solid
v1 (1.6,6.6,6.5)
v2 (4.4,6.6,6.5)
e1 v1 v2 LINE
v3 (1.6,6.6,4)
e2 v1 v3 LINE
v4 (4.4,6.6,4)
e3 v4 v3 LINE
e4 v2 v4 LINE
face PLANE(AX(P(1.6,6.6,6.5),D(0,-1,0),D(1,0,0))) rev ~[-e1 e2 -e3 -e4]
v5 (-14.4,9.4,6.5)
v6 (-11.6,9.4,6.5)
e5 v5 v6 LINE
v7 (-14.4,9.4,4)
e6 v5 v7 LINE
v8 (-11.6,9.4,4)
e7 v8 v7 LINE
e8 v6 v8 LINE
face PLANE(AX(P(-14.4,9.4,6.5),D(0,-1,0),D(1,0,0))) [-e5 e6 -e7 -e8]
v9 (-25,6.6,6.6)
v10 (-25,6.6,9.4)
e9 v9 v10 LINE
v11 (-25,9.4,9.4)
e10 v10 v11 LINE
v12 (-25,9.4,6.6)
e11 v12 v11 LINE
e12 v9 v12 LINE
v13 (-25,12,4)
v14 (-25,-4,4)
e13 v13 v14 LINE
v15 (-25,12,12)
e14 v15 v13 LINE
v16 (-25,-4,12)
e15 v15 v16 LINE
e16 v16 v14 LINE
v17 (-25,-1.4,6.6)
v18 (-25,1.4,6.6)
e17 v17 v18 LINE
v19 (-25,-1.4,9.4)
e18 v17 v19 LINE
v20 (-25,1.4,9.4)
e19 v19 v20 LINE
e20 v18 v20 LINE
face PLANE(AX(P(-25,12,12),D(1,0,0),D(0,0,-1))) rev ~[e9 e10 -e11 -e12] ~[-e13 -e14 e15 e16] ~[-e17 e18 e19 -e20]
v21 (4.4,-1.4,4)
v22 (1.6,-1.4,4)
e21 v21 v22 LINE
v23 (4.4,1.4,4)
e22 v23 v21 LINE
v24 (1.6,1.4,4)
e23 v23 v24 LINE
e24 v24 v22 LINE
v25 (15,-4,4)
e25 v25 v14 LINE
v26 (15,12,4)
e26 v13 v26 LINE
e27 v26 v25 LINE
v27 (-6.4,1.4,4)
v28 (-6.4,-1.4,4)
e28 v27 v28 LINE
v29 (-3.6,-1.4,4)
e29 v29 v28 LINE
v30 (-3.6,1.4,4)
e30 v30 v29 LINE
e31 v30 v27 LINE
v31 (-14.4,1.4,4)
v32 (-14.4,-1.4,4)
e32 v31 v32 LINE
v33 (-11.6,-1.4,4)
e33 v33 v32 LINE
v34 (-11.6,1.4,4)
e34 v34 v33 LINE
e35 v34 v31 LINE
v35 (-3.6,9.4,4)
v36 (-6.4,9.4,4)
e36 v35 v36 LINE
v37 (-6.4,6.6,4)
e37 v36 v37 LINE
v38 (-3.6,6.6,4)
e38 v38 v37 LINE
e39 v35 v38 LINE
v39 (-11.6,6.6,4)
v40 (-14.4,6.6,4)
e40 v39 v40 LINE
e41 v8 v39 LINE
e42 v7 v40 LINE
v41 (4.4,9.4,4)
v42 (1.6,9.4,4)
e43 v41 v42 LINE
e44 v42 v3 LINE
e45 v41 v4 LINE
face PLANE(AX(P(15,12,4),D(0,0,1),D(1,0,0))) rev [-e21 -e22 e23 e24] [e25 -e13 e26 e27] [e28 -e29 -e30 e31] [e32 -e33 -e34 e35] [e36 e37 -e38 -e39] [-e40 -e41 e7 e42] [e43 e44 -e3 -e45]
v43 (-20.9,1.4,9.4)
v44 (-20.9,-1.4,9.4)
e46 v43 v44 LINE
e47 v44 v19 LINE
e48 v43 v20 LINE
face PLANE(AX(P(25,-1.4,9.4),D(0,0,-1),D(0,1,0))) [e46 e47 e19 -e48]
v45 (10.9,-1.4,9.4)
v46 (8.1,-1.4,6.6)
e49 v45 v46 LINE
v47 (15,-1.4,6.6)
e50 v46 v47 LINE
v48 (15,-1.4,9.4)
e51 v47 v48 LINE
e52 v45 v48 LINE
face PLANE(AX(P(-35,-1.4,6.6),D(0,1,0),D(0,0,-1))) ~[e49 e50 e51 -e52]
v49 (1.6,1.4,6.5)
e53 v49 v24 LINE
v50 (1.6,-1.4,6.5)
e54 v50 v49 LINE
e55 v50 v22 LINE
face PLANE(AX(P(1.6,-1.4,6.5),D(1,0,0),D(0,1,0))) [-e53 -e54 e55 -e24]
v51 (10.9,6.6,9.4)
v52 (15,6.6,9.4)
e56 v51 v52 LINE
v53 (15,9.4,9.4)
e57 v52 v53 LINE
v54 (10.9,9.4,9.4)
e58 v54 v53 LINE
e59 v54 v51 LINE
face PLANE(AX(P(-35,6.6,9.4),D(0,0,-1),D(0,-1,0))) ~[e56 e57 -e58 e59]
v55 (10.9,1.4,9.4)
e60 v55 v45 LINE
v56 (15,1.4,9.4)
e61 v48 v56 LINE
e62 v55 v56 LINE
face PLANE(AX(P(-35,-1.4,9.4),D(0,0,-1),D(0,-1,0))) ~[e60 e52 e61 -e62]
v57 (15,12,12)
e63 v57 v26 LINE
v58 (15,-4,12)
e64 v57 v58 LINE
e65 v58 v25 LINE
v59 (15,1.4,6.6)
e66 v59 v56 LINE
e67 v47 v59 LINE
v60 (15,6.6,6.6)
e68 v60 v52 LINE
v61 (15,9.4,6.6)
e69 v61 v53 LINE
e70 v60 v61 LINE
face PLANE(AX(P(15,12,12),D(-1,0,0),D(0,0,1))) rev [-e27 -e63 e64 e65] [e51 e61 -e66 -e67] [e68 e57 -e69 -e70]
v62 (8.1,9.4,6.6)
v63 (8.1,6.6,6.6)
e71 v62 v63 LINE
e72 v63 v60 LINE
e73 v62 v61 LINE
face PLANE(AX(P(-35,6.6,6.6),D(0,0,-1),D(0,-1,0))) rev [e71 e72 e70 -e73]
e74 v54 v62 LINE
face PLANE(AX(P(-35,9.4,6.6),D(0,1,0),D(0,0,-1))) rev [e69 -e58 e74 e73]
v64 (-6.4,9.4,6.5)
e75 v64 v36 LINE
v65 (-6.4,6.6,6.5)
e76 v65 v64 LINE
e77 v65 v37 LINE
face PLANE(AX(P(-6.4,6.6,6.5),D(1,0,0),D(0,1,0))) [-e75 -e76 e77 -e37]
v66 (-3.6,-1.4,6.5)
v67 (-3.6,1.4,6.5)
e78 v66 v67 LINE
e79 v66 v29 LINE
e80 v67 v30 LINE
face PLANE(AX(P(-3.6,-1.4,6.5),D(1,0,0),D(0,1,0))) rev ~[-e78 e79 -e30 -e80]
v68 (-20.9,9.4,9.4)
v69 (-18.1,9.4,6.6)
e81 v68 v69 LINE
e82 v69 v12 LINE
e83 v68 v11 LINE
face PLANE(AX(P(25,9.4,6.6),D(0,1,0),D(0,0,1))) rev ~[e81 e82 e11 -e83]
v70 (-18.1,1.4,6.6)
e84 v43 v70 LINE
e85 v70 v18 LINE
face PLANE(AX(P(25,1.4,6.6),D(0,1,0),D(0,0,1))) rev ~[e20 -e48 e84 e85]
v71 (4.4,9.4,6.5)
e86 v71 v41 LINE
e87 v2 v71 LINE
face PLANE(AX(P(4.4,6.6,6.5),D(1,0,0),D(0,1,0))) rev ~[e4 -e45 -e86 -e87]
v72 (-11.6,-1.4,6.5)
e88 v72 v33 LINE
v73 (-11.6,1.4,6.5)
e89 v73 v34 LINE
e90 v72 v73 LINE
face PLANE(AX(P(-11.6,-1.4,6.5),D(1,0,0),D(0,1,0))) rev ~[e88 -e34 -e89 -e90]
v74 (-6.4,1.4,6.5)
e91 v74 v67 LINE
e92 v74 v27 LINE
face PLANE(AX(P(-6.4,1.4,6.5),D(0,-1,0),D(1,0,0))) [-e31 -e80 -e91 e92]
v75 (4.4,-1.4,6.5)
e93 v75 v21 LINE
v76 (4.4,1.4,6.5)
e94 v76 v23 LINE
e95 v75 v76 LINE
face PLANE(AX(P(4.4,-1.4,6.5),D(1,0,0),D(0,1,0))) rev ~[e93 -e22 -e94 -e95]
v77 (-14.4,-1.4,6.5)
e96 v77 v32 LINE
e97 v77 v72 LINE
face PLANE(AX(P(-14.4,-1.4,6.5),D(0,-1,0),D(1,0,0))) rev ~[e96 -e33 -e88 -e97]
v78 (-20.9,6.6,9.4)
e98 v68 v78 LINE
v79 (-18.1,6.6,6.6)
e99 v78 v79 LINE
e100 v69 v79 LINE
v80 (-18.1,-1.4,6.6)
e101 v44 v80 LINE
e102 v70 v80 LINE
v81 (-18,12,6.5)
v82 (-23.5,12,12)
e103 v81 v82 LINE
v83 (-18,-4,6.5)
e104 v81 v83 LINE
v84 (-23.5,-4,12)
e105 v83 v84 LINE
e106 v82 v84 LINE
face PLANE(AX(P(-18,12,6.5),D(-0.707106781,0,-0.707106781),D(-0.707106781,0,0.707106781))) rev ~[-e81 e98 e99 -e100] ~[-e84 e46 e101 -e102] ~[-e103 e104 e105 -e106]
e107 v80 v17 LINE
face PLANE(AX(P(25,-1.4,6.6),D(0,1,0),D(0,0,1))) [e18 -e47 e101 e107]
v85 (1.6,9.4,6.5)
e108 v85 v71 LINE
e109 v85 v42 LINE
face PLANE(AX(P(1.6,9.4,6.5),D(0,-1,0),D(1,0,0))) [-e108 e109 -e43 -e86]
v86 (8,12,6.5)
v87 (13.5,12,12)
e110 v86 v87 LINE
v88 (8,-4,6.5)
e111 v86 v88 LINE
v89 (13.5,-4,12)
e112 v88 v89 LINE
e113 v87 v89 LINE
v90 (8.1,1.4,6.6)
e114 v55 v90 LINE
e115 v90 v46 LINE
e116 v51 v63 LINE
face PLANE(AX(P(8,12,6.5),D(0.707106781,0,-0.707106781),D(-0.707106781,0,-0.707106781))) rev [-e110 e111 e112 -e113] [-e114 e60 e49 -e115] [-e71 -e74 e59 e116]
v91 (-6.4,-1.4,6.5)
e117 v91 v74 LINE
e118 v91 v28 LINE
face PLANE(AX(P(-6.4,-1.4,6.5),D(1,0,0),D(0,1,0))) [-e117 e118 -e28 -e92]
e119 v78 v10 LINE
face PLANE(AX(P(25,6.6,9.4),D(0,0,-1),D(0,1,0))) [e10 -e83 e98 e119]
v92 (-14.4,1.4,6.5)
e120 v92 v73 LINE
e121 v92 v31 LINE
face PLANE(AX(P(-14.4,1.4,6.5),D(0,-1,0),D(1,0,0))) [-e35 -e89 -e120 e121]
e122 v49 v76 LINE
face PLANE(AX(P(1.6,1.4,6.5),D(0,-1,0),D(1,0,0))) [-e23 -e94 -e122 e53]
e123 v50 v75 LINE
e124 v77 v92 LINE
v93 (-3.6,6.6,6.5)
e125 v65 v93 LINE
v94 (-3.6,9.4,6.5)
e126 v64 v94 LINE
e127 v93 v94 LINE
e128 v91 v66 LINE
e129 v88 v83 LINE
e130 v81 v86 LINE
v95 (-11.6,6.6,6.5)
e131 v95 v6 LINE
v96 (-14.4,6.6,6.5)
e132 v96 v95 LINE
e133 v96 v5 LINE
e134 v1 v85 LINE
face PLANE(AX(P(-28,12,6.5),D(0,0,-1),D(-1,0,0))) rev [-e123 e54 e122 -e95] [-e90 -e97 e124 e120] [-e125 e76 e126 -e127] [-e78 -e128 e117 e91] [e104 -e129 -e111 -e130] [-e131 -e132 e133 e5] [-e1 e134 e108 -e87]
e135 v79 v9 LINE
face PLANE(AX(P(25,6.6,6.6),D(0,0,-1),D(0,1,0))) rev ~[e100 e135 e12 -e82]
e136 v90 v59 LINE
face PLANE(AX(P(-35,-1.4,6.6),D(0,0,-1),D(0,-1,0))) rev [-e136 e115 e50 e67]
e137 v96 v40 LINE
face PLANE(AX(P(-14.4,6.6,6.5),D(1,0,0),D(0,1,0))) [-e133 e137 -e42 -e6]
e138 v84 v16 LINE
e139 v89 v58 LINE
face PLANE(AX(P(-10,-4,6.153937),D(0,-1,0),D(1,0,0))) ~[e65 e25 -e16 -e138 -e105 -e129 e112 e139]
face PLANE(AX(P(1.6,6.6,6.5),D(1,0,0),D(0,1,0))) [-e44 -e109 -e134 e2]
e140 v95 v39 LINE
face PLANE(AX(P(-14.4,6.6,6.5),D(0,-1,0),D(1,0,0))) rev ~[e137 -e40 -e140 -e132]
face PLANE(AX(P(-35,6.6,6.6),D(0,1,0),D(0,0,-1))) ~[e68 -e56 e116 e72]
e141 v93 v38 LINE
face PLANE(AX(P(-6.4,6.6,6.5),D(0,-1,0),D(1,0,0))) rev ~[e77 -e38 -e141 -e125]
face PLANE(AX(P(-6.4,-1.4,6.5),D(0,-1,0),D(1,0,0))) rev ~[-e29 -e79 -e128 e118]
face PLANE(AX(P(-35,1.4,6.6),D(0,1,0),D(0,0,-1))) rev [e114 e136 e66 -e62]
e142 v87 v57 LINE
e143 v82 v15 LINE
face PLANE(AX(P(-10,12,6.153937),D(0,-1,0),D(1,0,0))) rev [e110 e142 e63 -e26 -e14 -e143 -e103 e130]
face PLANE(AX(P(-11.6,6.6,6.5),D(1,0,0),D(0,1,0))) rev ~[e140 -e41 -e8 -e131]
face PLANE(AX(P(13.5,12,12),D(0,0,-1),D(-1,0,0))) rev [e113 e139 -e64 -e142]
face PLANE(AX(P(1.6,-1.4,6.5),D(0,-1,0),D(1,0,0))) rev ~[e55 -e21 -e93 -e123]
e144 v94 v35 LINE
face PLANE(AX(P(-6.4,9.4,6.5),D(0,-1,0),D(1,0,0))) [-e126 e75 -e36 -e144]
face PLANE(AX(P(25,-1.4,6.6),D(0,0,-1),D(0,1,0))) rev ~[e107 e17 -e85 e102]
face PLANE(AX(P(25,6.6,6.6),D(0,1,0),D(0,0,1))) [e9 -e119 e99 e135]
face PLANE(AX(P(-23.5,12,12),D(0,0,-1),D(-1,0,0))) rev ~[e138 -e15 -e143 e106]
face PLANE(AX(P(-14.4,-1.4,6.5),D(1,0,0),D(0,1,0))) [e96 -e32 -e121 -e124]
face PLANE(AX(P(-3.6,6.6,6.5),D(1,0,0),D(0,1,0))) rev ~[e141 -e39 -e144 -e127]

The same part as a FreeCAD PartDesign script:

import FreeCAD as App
import Part
import Sketcher
Q = App.Units.Quantity

doc = App.newDocument("Part")
body = doc.addObject("PartDesign::Body", "Body")

sketch1 = body.newObject("Sketcher::SketchObject", "Sketch")
sketch1.AttachmentSupport = (doc.getObject("XY_Plane"), [""])
sketch1.MapMode = "FlatFace"
sketch1.addGeometry([
    Part.LineSegment(App.Vector(-25, 0, 0), App.Vector(25, 0, 0)),
    Part.LineSegment(App.Vector(25, 0, 0), App.Vector(25, 8, 0)),
    Part.LineSegment(App.Vector(25, 8, 0), App.Vector(23.5, 8, 0)),
    Part.LineSegment(App.Vector(23.5, 8, 0), App.Vector(18, 2.5, 0)),
    Part.LineSegment(App.Vector(18, 2.5, 0), App.Vector(-18, 2.5, 0)),
    Part.LineSegment(App.Vector(-18, 2.5, 0), App.Vector(-23.5, 8, 0)),
    Part.LineSegment(App.Vector(-23.5, 8, 0), App.Vector(-25, 8, 0)),
    Part.LineSegment(App.Vector(-25, 8, 0), App.Vector(-25, 0, 0)),
], False)
sketch1.addConstraint([
    Sketcher.Constraint("Coincident", 0, 2, 1, 1),
    Sketcher.Constraint("Coincident", 1, 2, 2, 1),
    Sketcher.Constraint("Coincident", 2, 2, 3, 1),
    Sketcher.Constraint("Coincident", 3, 2, 4, 1),
    Sketcher.Constraint("Coincident", 4, 2, 5, 1),
    Sketcher.Constraint("Coincident", 5, 2, 6, 1),
    Sketcher.Constraint("Coincident", 6, 2, 7, 1),
    Sketcher.Constraint("Coincident", 7, 2, 0, 1),
    Sketcher.Constraint("Horizontal", 0),
    Sketcher.Constraint("Vertical", 1),
    Sketcher.Constraint("Horizontal", 2),
    Sketcher.Constraint("Horizontal", 4),
    Sketcher.Constraint("Horizontal", 6),
    Sketcher.Constraint("Vertical", 7),
    Sketcher.Constraint("Symmetric", 0, 2, 7, 2, -1, 1),
    Sketcher.Constraint("Symmetric", 2, 2, 5, 2, -2),
    Sketcher.Constraint("Perpendicular", 3, 5),
    Sketcher.Constraint("Equal", 3, 5),
    Sketcher.Constraint("DistanceX", 0, 1, 0, 2, Q("50 mm")),
    Sketcher.Constraint("DistanceX", 4, 2, 4, 1, Q("36 mm")),
    Sketcher.Constraint("DistanceY", 1, 1, 1, 2, Q("8 mm")),
    Sketcher.Constraint("DistanceX", 2, 2, 2, 1, Q("1.5 mm")),
])
pad1 = body.newObject("PartDesign::Pad", "Pad")
pad1.Profile = sketch1
pad1.Length = 16

sketch2 = body.newObject("Sketcher::SketchObject", "Sketch001")
sketch2.AttachmentSupport = (doc.getObject("YZ_Plane"), [""])
sketch2.MapMode = "FlatFace"
sketch2.AttachmentOffset = App.Placement(App.Vector(0, 0, 25), App.Rotation())
sketch2.addGeometry([
    Part.LineSegment(App.Vector(5.4, 5.4, 0), App.Vector(2.6, 5.4, 0)),
    Part.LineSegment(App.Vector(2.6, 5.4, 0), App.Vector(2.6, 2.6, 0)),
    Part.LineSegment(App.Vector(2.6, 2.6, 0), App.Vector(5.4, 2.6, 0)),
    Part.LineSegment(App.Vector(5.4, 2.6, 0), App.Vector(5.4, 5.4, 0)),
    Part.LineSegment(App.Vector(5.4, 13.4, 0), App.Vector(2.6, 13.4, 0)),
    Part.LineSegment(App.Vector(2.6, 13.4, 0), App.Vector(2.6, 10.6, 0)),
    Part.LineSegment(App.Vector(2.6, 10.6, 0), App.Vector(5.4, 10.6, 0)),
    Part.LineSegment(App.Vector(5.4, 10.6, 0), App.Vector(5.4, 13.4, 0)),
], False)
sketch2.addConstraint([
    Sketcher.Constraint("Coincident", 0, 2, 1, 1),
    Sketcher.Constraint("Coincident", 1, 2, 2, 1),
    Sketcher.Constraint("Coincident", 2, 2, 3, 1),
    Sketcher.Constraint("Coincident", 3, 2, 0, 1),
    Sketcher.Constraint("Coincident", 4, 2, 5, 1),
    Sketcher.Constraint("Coincident", 5, 2, 6, 1),
    Sketcher.Constraint("Coincident", 6, 2, 7, 1),
    Sketcher.Constraint("Coincident", 7, 2, 4, 1),
    Sketcher.Constraint("Horizontal", 0),
    Sketcher.Constraint("Vertical", 1),
    Sketcher.Constraint("Horizontal", 2),
    Sketcher.Constraint("Vertical", 3),
    Sketcher.Constraint("Horizontal", 4),
    Sketcher.Constraint("Vertical", 5),
    Sketcher.Constraint("Horizontal", 6),
    Sketcher.Constraint("Vertical", 7),
    Sketcher.Constraint("Vertical", 1, 2, 4, 2),
    Sketcher.Constraint("Vertical", 3, 2, 6, 2),
    Sketcher.Constraint("Equal", 6, 1),
    Sketcher.Constraint("Equal", 3, 5),
    Sketcher.Constraint("DistanceX", 0, 2, 0, 1, Q("2.8 mm")),
    Sketcher.Constraint("DistanceY", 0, 2, 4, 2, Q("8 mm")),
    Sketcher.Constraint("DistanceX", -1, 1, 0, 2, Q("2.6 mm")),
    Sketcher.Constraint("DistanceY", -1, 1, 0, 2, Q("5.4 mm")),
])
pocket1 = body.newObject("PartDesign::Pocket", "Pocket")
pocket1.Profile = sketch2
pocket1.Type = "ThroughAll"

sketch3 = body.newObject("Sketcher::SketchObject", "Sketch002")
sketch3.AttachmentSupport = (doc.getObject("XZ_Plane"), [""])
sketch3.MapMode = "FlatFace"
sketch3.AttachmentOffset = App.Placement(App.Vector(0, 0, -2.5), App.Rotation())
sketch3.addGeometry([
    Part.LineSegment(App.Vector(-17.4, 2.6, 0), App.Vector(-17.4, 5.4, 0)),
    Part.LineSegment(App.Vector(-17.4, 5.4, 0), App.Vector(-14.6, 5.4, 0)),
    Part.LineSegment(App.Vector(-14.6, 5.4, 0), App.Vector(-14.6, 2.6, 0)),
    Part.LineSegment(App.Vector(-14.6, 2.6, 0), App.Vector(-17.4, 2.6, 0)),
    Part.LineSegment(App.Vector(-9.4, 2.6, 0), App.Vector(-9.4, 5.4, 0)),
    Part.LineSegment(App.Vector(-9.4, 5.4, 0), App.Vector(-6.6, 5.4, 0)),
    Part.LineSegment(App.Vector(-6.6, 5.4, 0), App.Vector(-6.6, 2.6, 0)),
    Part.LineSegment(App.Vector(-6.6, 2.6, 0), App.Vector(-9.4, 2.6, 0)),
    Part.LineSegment(App.Vector(-1.4, 2.6, 0), App.Vector(-1.4, 5.4, 0)),
    Part.LineSegment(App.Vector(-1.4, 5.4, 0), App.Vector(1.4, 5.4, 0)),
    Part.LineSegment(App.Vector(1.4, 5.4, 0), App.Vector(1.4, 2.6, 0)),
    Part.LineSegment(App.Vector(1.4, 2.6, 0), App.Vector(-1.4, 2.6, 0)),
    Part.LineSegment(App.Vector(6.6, 2.6, 0), App.Vector(6.6, 5.4, 0)),
    Part.LineSegment(App.Vector(6.6, 5.4, 0), App.Vector(9.4, 5.4, 0)),
    Part.LineSegment(App.Vector(9.4, 5.4, 0), App.Vector(9.4, 2.6, 0)),
    Part.LineSegment(App.Vector(9.4, 2.6, 0), App.Vector(6.6, 2.6, 0)),
    Part.LineSegment(App.Vector(14.6, 2.6, 0), App.Vector(14.6, 5.4, 0)),
    Part.LineSegment(App.Vector(14.6, 5.4, 0), App.Vector(17.4, 5.4, 0)),
    Part.LineSegment(App.Vector(17.4, 5.4, 0), App.Vector(17.4, 2.6, 0)),
    Part.LineSegment(App.Vector(17.4, 2.6, 0), App.Vector(14.6, 2.6, 0)),
    Part.LineSegment(App.Vector(-9.4, 10.6, 0), App.Vector(-9.4, 13.4, 0)),
    Part.LineSegment(App.Vector(-9.4, 13.4, 0), App.Vector(-6.6, 13.4, 0)),
    Part.LineSegment(App.Vector(-6.6, 13.4, 0), App.Vector(-6.6, 10.6, 0)),
    Part.LineSegment(App.Vector(-6.6, 10.6, 0), App.Vector(-9.4, 10.6, 0)),
    Part.LineSegment(App.Vector(-1.4, 10.6, 0), App.Vector(-1.4, 13.4, 0)),
    Part.LineSegment(App.Vector(-1.4, 13.4, 0), App.Vector(1.4, 13.4, 0)),
    Part.LineSegment(App.Vector(1.4, 13.4, 0), App.Vector(1.4, 10.6, 0)),
    Part.LineSegment(App.Vector(1.4, 10.6, 0), App.Vector(-1.4, 10.6, 0)),
    Part.LineSegment(App.Vector(6.6, 10.6, 0), App.Vector(6.6, 13.4, 0)),
    Part.LineSegment(App.Vector(6.6, 13.4, 0), App.Vector(9.4, 13.4, 0)),
    Part.LineSegment(App.Vector(9.4, 13.4, 0), App.Vector(9.4, 10.6, 0)),
    Part.LineSegment(App.Vector(9.4, 10.6, 0), App.Vector(6.6, 10.6, 0)),
    Part.LineSegment(App.Vector(14.6, 10.6, 0), App.Vector(14.6, 13.4, 0)),
    Part.LineSegment(App.Vector(14.6, 13.4, 0), App.Vector(17.4, 13.4, 0)),
    Part.LineSegment(App.Vector(17.4, 13.4, 0), App.Vector(17.4, 10.6, 0)),
    Part.LineSegment(App.Vector(17.4, 10.6, 0), App.Vector(14.6, 10.6, 0)),
    Part.LineSegment(App.Vector(-17.4, 10.6, 0), App.Vector(-17.4, 13.4, 0)),
    Part.LineSegment(App.Vector(-17.4, 13.4, 0), App.Vector(-14.6, 13.4, 0)),
    Part.LineSegment(App.Vector(-14.6, 13.4, 0), App.Vector(-14.6, 10.6, 0)),
    Part.LineSegment(App.Vector(-14.6, 10.6, 0), App.Vector(-17.4, 10.6, 0)),
], False)
sketch3.addConstraint([
    Sketcher.Constraint("Coincident", 0, 2, 1, 1),
    Sketcher.Constraint("Coincident", 1, 2, 2, 1),
    Sketcher.Constraint("Coincident", 2, 2, 3, 1),
    Sketcher.Constraint("Coincident", 3, 2, 0, 1),
    Sketcher.Constraint("Coincident", 4, 2, 5, 1),
    Sketcher.Constraint("Coincident", 5, 2, 6, 1),
    Sketcher.Constraint("Coincident", 6, 2, 7, 1),
    Sketcher.Constraint("Coincident", 7, 2, 4, 1),
    Sketcher.Constraint("Coincident", 8, 2, 9, 1),
    Sketcher.Constraint("Coincident", 9, 2, 10, 1),
    Sketcher.Constraint("Coincident", 10, 2, 11, 1),
    Sketcher.Constraint("Coincident", 11, 2, 8, 1),
    Sketcher.Constraint("Coincident", 12, 2, 13, 1),
    Sketcher.Constraint("Coincident", 13, 2, 14, 1),
    Sketcher.Constraint("Coincident", 14, 2, 15, 1),
    Sketcher.Constraint("Coincident", 15, 2, 12, 1),
    Sketcher.Constraint("Coincident", 16, 2, 17, 1),
    Sketcher.Constraint("Coincident", 17, 2, 18, 1),
    Sketcher.Constraint("Coincident", 18, 2, 19, 1),
    Sketcher.Constraint("Coincident", 19, 2, 16, 1),
    Sketcher.Constraint("Coincident", 20, 2, 21, 1),
    Sketcher.Constraint("Coincident", 21, 2, 22, 1),
    Sketcher.Constraint("Coincident", 22, 2, 23, 1),
    Sketcher.Constraint("Coincident", 23, 2, 20, 1),
    Sketcher.Constraint("Coincident", 24, 2, 25, 1),
    Sketcher.Constraint("Coincident", 25, 2, 26, 1),
    Sketcher.Constraint("Coincident", 26, 2, 27, 1),
    Sketcher.Constraint("Coincident", 27, 2, 24, 1),
    Sketcher.Constraint("Coincident", 28, 2, 29, 1),
    Sketcher.Constraint("Coincident", 29, 2, 30, 1),
    Sketcher.Constraint("Coincident", 30, 2, 31, 1),
    Sketcher.Constraint("Coincident", 31, 2, 28, 1),
    Sketcher.Constraint("Coincident", 32, 2, 33, 1),
    Sketcher.Constraint("Coincident", 33, 2, 34, 1),
    Sketcher.Constraint("Coincident", 34, 2, 35, 1),
    Sketcher.Constraint("Coincident", 35, 2, 32, 1),
    Sketcher.Constraint("Coincident", 36, 2, 37, 1),
    Sketcher.Constraint("Coincident", 37, 2, 38, 1),
    Sketcher.Constraint("Coincident", 38, 2, 39, 1),
    Sketcher.Constraint("Coincident", 39, 2, 36, 1),
    Sketcher.Constraint("Vertical", 0),
    Sketcher.Constraint("Horizontal", 1),
    Sketcher.Constraint("Vertical", 2),
    Sketcher.Constraint("Horizontal", 3),
    Sketcher.Constraint("Vertical", 4),
    Sketcher.Constraint("Horizontal", 5),
    Sketcher.Constraint("Vertical", 6),
    Sketcher.Constraint("Horizontal", 7),
    Sketcher.Constraint("Vertical", 8),
    Sketcher.Constraint("Horizontal", 9),
    Sketcher.Constraint("Vertical", 10),
    Sketcher.Constraint("Horizontal", 11),
    Sketcher.Constraint("Vertical", 12),
    Sketcher.Constraint("Horizontal", 13),
    Sketcher.Constraint("Vertical", 14),
    Sketcher.Constraint("Horizontal", 15),
    Sketcher.Constraint("Vertical", 16),
    Sketcher.Constraint("Horizontal", 17),
    Sketcher.Constraint("Vertical", 18),
    Sketcher.Constraint("Horizontal", 19),
    Sketcher.Constraint("Vertical", 20),
    Sketcher.Constraint("Horizontal", 21),
    Sketcher.Constraint("Vertical", 22),
    Sketcher.Constraint("Horizontal", 23),
    Sketcher.Constraint("Vertical", 24),
    Sketcher.Constraint("Horizontal", 25),
    Sketcher.Constraint("Vertical", 26),
    Sketcher.Constraint("Horizontal", 27),
    Sketcher.Constraint("Vertical", 28),
    Sketcher.Constraint("Horizontal", 29),
    Sketcher.Constraint("Vertical", 30),
    Sketcher.Constraint("Horizontal", 31),
    Sketcher.Constraint("Vertical", 32),
    Sketcher.Constraint("Horizontal", 33),
    Sketcher.Constraint("Vertical", 34),
    Sketcher.Constraint("Horizontal", 35),
    Sketcher.Constraint("Vertical", 36),
    Sketcher.Constraint("Horizontal", 37),
    Sketcher.Constraint("Vertical", 38),
    Sketcher.Constraint("Horizontal", 39),
    Sketcher.Constraint("Symmetric", 5, 2, 12, 2, -2),
    Sketcher.Constraint("Symmetric", 7, 2, 14, 2, -2),
    Sketcher.Constraint("Symmetric", 1, 2, 16, 2, -2),
    Sketcher.Constraint("Symmetric", 3, 2, 18, 2, -2),
    Sketcher.Constraint("Symmetric", 21, 2, 28, 2, -2),
    Sketcher.Constraint("Symmetric", 23, 2, 30, 2, -2),
    Sketcher.Constraint("Symmetric", 33, 2, 36, 2, -2),
    Sketcher.Constraint("Symmetric", 35, 2, 38, 2, -2),
    Sketcher.Constraint("Horizontal", 1, 2, 4, 2),
    Sketcher.Constraint("Horizontal", 3, 2, 6, 2),
    Sketcher.Constraint("Horizontal", 5, 2, 8, 2),
    Sketcher.Constraint("Horizontal", 7, 2, 10, 2),
    Sketcher.Constraint("Horizontal", 21, 2, 24, 2),
    Sketcher.Constraint("Horizontal", 23, 2, 26, 2),
    Sketcher.Constraint("Horizontal", 29, 2, 32, 2),
    Sketcher.Constraint("Horizontal", 31, 2, 34, 2),
    Sketcher.Constraint("Vertical", 7, 2, 20, 2),
    Sketcher.Constraint("Vertical", 6, 2, 21, 2),
    Sketcher.Constraint("Vertical", 11, 2, 24, 2),
    Sketcher.Constraint("Vertical", 10, 2, 25, 2),
    Sketcher.Constraint("Vertical", 19, 2, 32, 2),
    Sketcher.Constraint("Vertical", 18, 2, 33, 2),
    Sketcher.Constraint("Equal", 3, 5),
    Sketcher.Constraint("Equal", 7, 9),
    Sketcher.Constraint("Equal", 39, 0),
    Sketcher.Constraint("Equal", 18, 20),
    Sketcher.Constraint("DistanceX", 1, 1, 1, 2, Q("2.8 mm")),
    Sketcher.Constraint("DistanceX", 0, 2, 4, 2, Q("8 mm")),
    Sketcher.Constraint("DistanceX", 4, 2, 8, 2, Q("8 mm")),
    Sketcher.Constraint("DistanceX", 8, 2, 12, 2, Q("8 mm")),
    Sketcher.Constraint("DistanceY", 4, 2, 20, 2, Q("8 mm")),
    Sketcher.Constraint("DistanceY", -1, 1, 0, 2, Q("5.4 mm")),
])
pocket2 = body.newObject("PartDesign::Pocket", "Pocket001")
pocket2.Profile = sketch3
pocket2.Type = "ThroughAll"
pocket2.Reversed = True
body2 = doc.addObject("PartDesign::Body", "Body001")
doc.recompute()

body.Placement = App.Placement(App.Vector(0, 12, 4), App.Rotation(App.Vector(1, 0, 0), 90))
boolean = body2.newObject("PartDesign::Boolean", "Boolean")
boolean.Type = "Fuse"
boolean.addObjects([body])

sketch4 = body2.newObject("Sketcher::SketchObject", "Sketch003")
sketch4.AttachmentSupport = (doc.getObject("XY_Plane001"), [""])
sketch4.MapMode = "FlatFace"
sketch4.AttachmentOffset = App.Placement(App.Vector(0, 0, 4), App.Rotation())
sketch4.addGeometry([
    Part.LineSegment(App.Vector(25, 12, 0), App.Vector(25, -4, 0)),
    Part.LineSegment(App.Vector(25, -4, 0), App.Vector(-5, -4, 0)),
    Part.LineSegment(App.Vector(-5, -4, 0), App.Vector(-5, 12, 0)),
    Part.LineSegment(App.Vector(-5, 12, 0), App.Vector(25, 12, 0)),
], False)
sketch4.addConstraint([
    Sketcher.Constraint("Coincident", 0, 2, 1, 1),
    Sketcher.Constraint("Coincident", 1, 2, 2, 1),
    Sketcher.Constraint("Coincident", 2, 2, 3, 1),
    Sketcher.Constraint("Coincident", 3, 2, 0, 1),
    Sketcher.Constraint("Vertical", 0),
    Sketcher.Constraint("Horizontal", 1),
    Sketcher.Constraint("Vertical", 2),
    Sketcher.Constraint("Horizontal", 3),
    Sketcher.Constraint("DistanceX", 1, 2, 1, 1, Q("30 mm")),
    Sketcher.Constraint("DistanceY", 0, 2, 0, 1, Q("16 mm")),
    Sketcher.Constraint("DistanceX", -1, 1, 0, 2, Q("25 mm")),
    Sketcher.Constraint("DistanceY", 0, 2, -1, 1, Q("4 mm")),
])
pocket3 = body2.newObject("PartDesign::Pocket", "Pocket002")
pocket3.Profile = sketch4
pocket3.Type = "ThroughAll"
pocket3.Reversed = True
body3 = doc.addObject("PartDesign::Body", "Body002")
doc.recompute()

body3.BaseFeature = body2
doc.recompute()

mirroring = doc.addObject("Part::Mirroring", "Mirroring")
mirroring.Source = body2
mirroring.Base = App.Vector(-5, -4, 12)
mirroring.Normal = App.Vector(-1, 0, 0)
body4 = doc.addObject("PartDesign::Body", "Body003")
body4.BaseFeature = mirroring
boolean2 = body3.newObject("PartDesign::Boolean", "Boolean001")
boolean2.Type = "Fuse"
boolean2.addObjects([body4])
doc.recompute()

sketch5 = body3.newObject("Sketcher::SketchObject", "Sketch004")
sketch5.AttachmentSupport = (doc.getObject("XY_Plane002"), [""])
sketch5.MapMode = "FlatFace"
sketch5.AttachmentOffset = App.Placement(App.Vector(0, 0, 6.5), App.Rotation())
sketch5.addGeometry([
    Part.LineSegment(App.Vector(-18, 10, 0), App.Vector(-18, -3, 0)),
    Part.LineSegment(App.Vector(-18, -3, 0), App.Vector(8, -3, 0)),
    Part.LineSegment(App.Vector(8, -3, 0), App.Vector(8, 10, 0)),
    Part.LineSegment(App.Vector(8, 10, 0), App.Vector(-18, 10, 0)),
], False)
sketch5.addConstraint([
    Sketcher.Constraint("Coincident", 0, 2, 1, 1),
    Sketcher.Constraint("Coincident", 1, 2, 2, 1),
    Sketcher.Constraint("Coincident", 2, 2, 3, 1),
    Sketcher.Constraint("Coincident", 3, 2, 0, 1),
    Sketcher.Constraint("Vertical", 0),
    Sketcher.Constraint("Horizontal", 1),
    Sketcher.Constraint("Vertical", 2),
    Sketcher.Constraint("Horizontal", 3),
    Sketcher.Constraint("DistanceX", 1, 1, 1, 2, Q("25.221413 mm")),
    Sketcher.Constraint("DistanceY", 0, 2, 0, 1, Q("12.576157 mm")),
    Sketcher.Constraint("DistanceX", 0, 2, -1, 1, Q("17.581991 mm")),
    Sketcher.Constraint("DistanceY", -1, 1, 2, 2, Q("9.914539 mm")),
])
pad2 = body3.newObject("PartDesign::Pad", "Pad001")
pad2.Profile = sketch5
pad2.Type = "UpToLast"
pad2.Reversed = True

sketch6 = body3.newObject("Sketcher::SketchObject", "Sketch005")
sketch6.AttachmentSupport = (doc.getObject("XY_Plane002"), [""])
sketch6.MapMode = "FlatFace"
sketch6.AttachmentOffset = App.Placement(App.Vector(0, 0, 6.5), App.Rotation())
sketch6.addGeometry([
    Part.LineSegment(App.Vector(-6.4, 9.4, 0), App.Vector(-6.4, 6.6, 0)),
    Part.LineSegment(App.Vector(-6.4, 6.6, 0), App.Vector(-3.6, 6.6, 0)),
    Part.LineSegment(App.Vector(-3.6, 6.6, 0), App.Vector(-3.6, 9.4, 0)),
    Part.LineSegment(App.Vector(-3.6, 9.4, 0), App.Vector(-6.4, 9.4, 0)),
    Part.LineSegment(App.Vector(-14.4, 9.4, 0), App.Vector(-14.4, 6.6, 0)),
    Part.LineSegment(App.Vector(-14.4, 6.6, 0), App.Vector(-11.6, 6.6, 0)),
    Part.LineSegment(App.Vector(-11.6, 6.6, 0), App.Vector(-11.6, 9.4, 0)),
    Part.LineSegment(App.Vector(-11.6, 9.4, 0), App.Vector(-14.4, 9.4, 0)),
    Part.LineSegment(App.Vector(1.6, 9.4, 0), App.Vector(1.6, 6.6, 0)),
    Part.LineSegment(App.Vector(1.6, 6.6, 0), App.Vector(4.4, 6.6, 0)),
    Part.LineSegment(App.Vector(4.4, 6.6, 0), App.Vector(4.4, 9.4, 0)),
    Part.LineSegment(App.Vector(4.4, 9.4, 0), App.Vector(1.6, 9.4, 0)),
    Part.LineSegment(App.Vector(-6.4, 1.4, 0), App.Vector(-6.4, -1.4, 0)),
    Part.LineSegment(App.Vector(-6.4, -1.4, 0), App.Vector(-3.6, -1.4, 0)),
    Part.LineSegment(App.Vector(-3.6, -1.4, 0), App.Vector(-3.6, 1.4, 0)),
    Part.LineSegment(App.Vector(-3.6, 1.4, 0), App.Vector(-6.4, 1.4, 0)),
    Part.LineSegment(App.Vector(1.6, 1.4, 0), App.Vector(1.6, -1.4, 0)),
    Part.LineSegment(App.Vector(1.6, -1.4, 0), App.Vector(4.4, -1.4, 0)),
    Part.LineSegment(App.Vector(4.4, -1.4, 0), App.Vector(4.4, 1.4, 0)),
    Part.LineSegment(App.Vector(4.4, 1.4, 0), App.Vector(1.6, 1.4, 0)),
    Part.LineSegment(App.Vector(-14.4, 1.4, 0), App.Vector(-14.4, -1.4, 0)),
    Part.LineSegment(App.Vector(-14.4, -1.4, 0), App.Vector(-11.6, -1.4, 0)),
    Part.LineSegment(App.Vector(-11.6, -1.4, 0), App.Vector(-11.6, 1.4, 0)),
    Part.LineSegment(App.Vector(-11.6, 1.4, 0), App.Vector(-14.4, 1.4, 0)),
], False)
sketch6.addConstraint([
    Sketcher.Constraint("Coincident", 0, 2, 1, 1),
    Sketcher.Constraint("Coincident", 1, 2, 2, 1),
    Sketcher.Constraint("Coincident", 2, 2, 3, 1),
    Sketcher.Constraint("Coincident", 3, 2, 0, 1),
    Sketcher.Constraint("Coincident", 4, 2, 5, 1),
    Sketcher.Constraint("Coincident", 5, 2, 6, 1),
    Sketcher.Constraint("Coincident", 6, 2, 7, 1),
    Sketcher.Constraint("Coincident", 7, 2, 4, 1),
    Sketcher.Constraint("Coincident", 8, 2, 9, 1),
    Sketcher.Constraint("Coincident", 9, 2, 10, 1),
    Sketcher.Constraint("Coincident", 10, 2, 11, 1),
    Sketcher.Constraint("Coincident", 11, 2, 8, 1),
    Sketcher.Constraint("Coincident", 12, 2, 13, 1),
    Sketcher.Constraint("Coincident", 13, 2, 14, 1),
    Sketcher.Constraint("Coincident", 14, 2, 15, 1),
    Sketcher.Constraint("Coincident", 15, 2, 12, 1),
    Sketcher.Constraint("Coincident", 16, 2, 17, 1),
    Sketcher.Constraint("Coincident", 17, 2, 18, 1),
    Sketcher.Constraint("Coincident", 18, 2, 19, 1),
    Sketcher.Constraint("Coincident", 19, 2, 16, 1),
    Sketcher.Constraint("Coincident", 20, 2, 21, 1),
    Sketcher.Constraint("Coincident", 21, 2, 22, 1),
    Sketcher.Constraint("Coincident", 22, 2, 23, 1),
    Sketcher.Constraint("Coincident", 23, 2, 20, 1),
    Sketcher.Constraint("Vertical", 0),
    Sketcher.Constraint("Horizontal", 1),
    Sketcher.Constraint("Vertical", 2),
    Sketcher.Constraint("Horizontal", 3),
    Sketcher.Constraint("Vertical", 4),
    Sketcher.Constraint("Horizontal", 5),
    Sketcher.Constraint("Vertical", 6),
    Sketcher.Constraint("Horizontal", 7),
    Sketcher.Constraint("Vertical", 8),
    Sketcher.Constraint("Horizontal", 9),
    Sketcher.Constraint("Vertical", 10),
    Sketcher.Constraint("Horizontal", 11),
    Sketcher.Constraint("Vertical", 12),
    Sketcher.Constraint("Horizontal", 13),
    Sketcher.Constraint("Vertical", 14),
    Sketcher.Constraint("Horizontal", 15),
    Sketcher.Constraint("Vertical", 16),
    Sketcher.Constraint("Horizontal", 17),
    Sketcher.Constraint("Vertical", 18),
    Sketcher.Constraint("Horizontal", 19),
    Sketcher.Constraint("Vertical", 20),
    Sketcher.Constraint("Horizontal", 21),
    Sketcher.Constraint("Vertical", 22),
    Sketcher.Constraint("Horizontal", 23),
    Sketcher.Constraint("Horizontal", 1, 2, 4, 2),
    Sketcher.Constraint("Horizontal", 3, 2, 6, 2),
    Sketcher.Constraint("Horizontal", 5, 2, 8, 2),
    Sketcher.Constraint("Horizontal", 7, 2, 10, 2),
    Sketcher.Constraint("Horizontal", 13, 2, 16, 2),
    Sketcher.Constraint("Horizontal", 15, 2, 18, 2),
    Sketcher.Constraint("Horizontal", 17, 2, 20, 2),
    Sketcher.Constraint("Horizontal", 19, 2, 22, 2),
    Sketcher.Constraint("Vertical", 3, 2, 12, 2),
    Sketcher.Constraint("Vertical", 2, 2, 13, 2),
    Sketcher.Constraint("Vertical", 11, 2, 16, 2),
    Sketcher.Constraint("Vertical", 10, 2, 17, 2),
    Sketcher.Constraint("Vertical", 7, 2, 20, 2),
    Sketcher.Constraint("Vertical", 6, 2, 21, 2),
    Sketcher.Constraint("Equal", 3, 5),
    Sketcher.Constraint("Equal", 7, 9),
    Sketcher.Constraint("Equal", 23, 0),
    Sketcher.Constraint("Equal", 10, 12),
    Sketcher.Constraint("DistanceX", 1, 1, 1, 2, Q("2.8 mm")),
    Sketcher.Constraint("DistanceX", 4, 2, 0, 2, Q("8 mm")),
    Sketcher.Constraint("DistanceX", 0, 2, 8, 2, Q("8 mm")),
    Sketcher.Constraint("DistanceY", 12, 2, 0, 2, Q("8 mm")),
    Sketcher.Constraint("DistanceX", 0, 2, -1, 1, Q("6.4 mm")),
    Sketcher.Constraint("DistanceY", -1, 1, 0, 2, Q("6.6 mm")),
])
pocket4 = body3.newObject("PartDesign::Pocket", "Pocket003")
pocket4.Profile = sketch6
pocket4.Type = "ThroughAll"
mirroring.Visibility = False

doc.recompute()
